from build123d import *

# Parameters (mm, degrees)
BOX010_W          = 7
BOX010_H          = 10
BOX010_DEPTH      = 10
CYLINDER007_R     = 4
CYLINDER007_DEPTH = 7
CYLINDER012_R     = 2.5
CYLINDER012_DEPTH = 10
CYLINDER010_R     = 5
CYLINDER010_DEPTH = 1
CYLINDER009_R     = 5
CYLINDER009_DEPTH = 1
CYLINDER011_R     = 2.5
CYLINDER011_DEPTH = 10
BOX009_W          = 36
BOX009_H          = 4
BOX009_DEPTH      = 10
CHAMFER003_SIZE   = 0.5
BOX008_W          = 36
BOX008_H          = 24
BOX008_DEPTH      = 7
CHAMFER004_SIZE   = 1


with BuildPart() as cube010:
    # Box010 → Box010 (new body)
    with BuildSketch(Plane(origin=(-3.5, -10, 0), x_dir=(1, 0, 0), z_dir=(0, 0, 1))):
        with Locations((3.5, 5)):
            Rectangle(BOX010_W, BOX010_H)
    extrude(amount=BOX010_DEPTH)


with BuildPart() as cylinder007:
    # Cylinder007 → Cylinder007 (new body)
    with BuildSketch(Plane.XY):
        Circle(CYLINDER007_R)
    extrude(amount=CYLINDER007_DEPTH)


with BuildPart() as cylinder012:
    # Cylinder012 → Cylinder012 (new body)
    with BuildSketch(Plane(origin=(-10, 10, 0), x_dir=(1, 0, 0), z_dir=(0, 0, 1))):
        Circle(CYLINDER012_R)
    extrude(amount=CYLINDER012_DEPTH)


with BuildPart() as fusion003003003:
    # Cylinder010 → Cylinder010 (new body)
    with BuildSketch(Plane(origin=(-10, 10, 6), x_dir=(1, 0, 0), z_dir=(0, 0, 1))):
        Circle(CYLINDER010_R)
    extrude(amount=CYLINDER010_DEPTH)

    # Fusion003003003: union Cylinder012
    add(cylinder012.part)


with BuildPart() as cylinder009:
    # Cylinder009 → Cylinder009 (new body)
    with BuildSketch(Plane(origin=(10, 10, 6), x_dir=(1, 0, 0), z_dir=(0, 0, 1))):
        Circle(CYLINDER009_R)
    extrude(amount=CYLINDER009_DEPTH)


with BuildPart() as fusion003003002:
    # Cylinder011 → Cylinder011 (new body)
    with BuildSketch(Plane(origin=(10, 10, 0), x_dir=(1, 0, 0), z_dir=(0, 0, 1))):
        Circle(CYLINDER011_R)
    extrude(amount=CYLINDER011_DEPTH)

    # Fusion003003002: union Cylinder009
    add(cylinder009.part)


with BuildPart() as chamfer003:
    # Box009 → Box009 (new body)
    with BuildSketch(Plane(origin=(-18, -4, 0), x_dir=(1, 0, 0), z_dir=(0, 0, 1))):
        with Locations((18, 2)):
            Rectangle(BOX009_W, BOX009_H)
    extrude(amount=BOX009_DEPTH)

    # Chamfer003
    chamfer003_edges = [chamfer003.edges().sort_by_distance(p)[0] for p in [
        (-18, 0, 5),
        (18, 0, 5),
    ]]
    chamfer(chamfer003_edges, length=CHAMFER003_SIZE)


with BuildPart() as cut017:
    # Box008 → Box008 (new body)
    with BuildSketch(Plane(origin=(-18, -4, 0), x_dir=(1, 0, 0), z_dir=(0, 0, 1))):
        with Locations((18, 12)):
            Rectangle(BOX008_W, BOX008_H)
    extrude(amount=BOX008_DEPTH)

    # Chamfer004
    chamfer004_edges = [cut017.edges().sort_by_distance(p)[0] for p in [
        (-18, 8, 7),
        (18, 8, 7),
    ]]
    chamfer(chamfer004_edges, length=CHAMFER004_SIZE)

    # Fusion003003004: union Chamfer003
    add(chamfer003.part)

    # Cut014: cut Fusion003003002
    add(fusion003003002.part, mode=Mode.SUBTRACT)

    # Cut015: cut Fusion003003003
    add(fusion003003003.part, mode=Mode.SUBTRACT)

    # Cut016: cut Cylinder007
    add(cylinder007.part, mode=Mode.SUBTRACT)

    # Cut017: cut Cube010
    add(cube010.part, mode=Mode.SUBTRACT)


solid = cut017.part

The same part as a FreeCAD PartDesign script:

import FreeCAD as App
import Part
import Sketcher

V = App.Vector


def edges_at(feature, points):
    """Names of the edges that pass closest to the given points."""
    edges = feature.Shape.Edges
    near = lambda p: min(range(len(edges)), key=lambda i: edges[i].distToShape(Part.Vertex(*p))[0])
    return sorted({f"Edge{near(p) + 1}" for p in points})


def add_polygon(sketch, points):
    """Adds a closed chain of lines whose ends are joined by coincident constraints."""
    first, n = sketch.GeometryCount, len(points)
    for a, b in zip(points, points[1:] + points[:1]):
        sketch.addGeometry(Part.LineSegment(App.Vector(*a, 0), App.Vector(*b, 0)), False)
    for i in range(n):
        sketch.addConstraint(Sketcher.Constraint("Coincident", first + i, 2, first + (i + 1) % n, 1))

doc = App.newDocument("Part")
body = doc.addObject("PartDesign::Body", "Body")

sketch1 = doc.addObject("Sketcher::SketchObject", "Sketch")
body.addObject(sketch1)
sketch1.AttachmentSupport = (doc.XY_Plane, [""])
sketch1.MapMode = "FlatFace"
add_polygon(sketch1, [(-4, 0), (-4, -10), (4, -10), (4, 0)])
sketch1.addConstraint(Sketcher.Constraint("Vertical", 0))
sketch1.addConstraint(Sketcher.Constraint("Horizontal", 1))
sketch1.addConstraint(Sketcher.Constraint("Vertical", 2))
sketch1.addConstraint(Sketcher.Constraint("Horizontal", 3))
sketch1.addConstraint(Sketcher.Constraint("Symmetric", 2, 2, 3, 2, -1, 1))
sketch1.addConstraint(Sketcher.Constraint("DistanceX", 1, 1, 1, 2, 7.0))
sketch1.addConstraint(Sketcher.Constraint("DistanceY", 0, 2, 0, 1, 10.0))
pad1 = doc.addObject("PartDesign::Pad", "Pad")
body.addObject(pad1)
pad1.Profile = sketch1
pad1.Length = 10
body2 = doc.addObject("PartDesign::Body", "Body001")

sketch2 = doc.addObject("Sketcher::SketchObject", "Sketch001")
body2.addObject(sketch2)
sketch2.AttachmentSupport = (doc.getObject("XY_Plane001"), [""])
sketch2.MapMode = "FlatFace"
sketch2.addGeometry(Part.Circle(V(0, 0, 0), V(0, 0, 1), 4), False)
sketch2.addConstraint(Sketcher.Constraint("Coincident", 0, 3, -1, 1))
sketch2.addConstraint(Sketcher.Constraint("Diameter", 0, 8.0))
pad2 = doc.addObject("PartDesign::Pad", "Pad001")
body2.addObject(pad2)
pad2.Profile = sketch2
pad2.Length = 7
body3 = doc.addObject("PartDesign::Body", "Body002")

sketch3 = doc.addObject("Sketcher::SketchObject", "Sketch002")
body3.addObject(sketch3)
sketch3.AttachmentSupport = (doc.getObject("XY_Plane002"), [""])
sketch3.MapMode = "FlatFace"
sketch3.addGeometry(Part.Circle(V(-10, 10, 0), V(0, 0, 1), 2.5), False)
sketch3.addConstraint(Sketcher.Constraint("Diameter", 0, 5.0))
sketch3.addConstraint(Sketcher.Constraint("DistanceX", 0, 3, -1, 1, 10.0))
sketch3.addConstraint(Sketcher.Constraint("DistanceY", -1, 1, 0, 3, 10.0))
pad3 = doc.addObject("PartDesign::Pad", "Pad002")
body3.addObject(pad3)
pad3.Profile = sketch3
pad3.Length = 10
body4 = doc.addObject("PartDesign::Body", "Body003")

sketch4 = doc.addObject("Sketcher::SketchObject", "Sketch003")
body4.addObject(sketch4)
sketch4.AttachmentSupport = (doc.getObject("XY_Plane003"), [""])
sketch4.MapMode = "FlatFace"
sketch4.AttachmentOffset = App.Placement(V(0, 0, 6), App.Rotation())
sketch4.addGeometry(Part.Circle(V(-10, 10, 0), V(0, 0, 1), 5), False)
sketch4.addConstraint(Sketcher.Constraint("Diameter", 0, 10.0))
sketch4.addConstraint(Sketcher.Constraint("DistanceX", 0, 3, -1, 1, 10.0))
sketch4.addConstraint(Sketcher.Constraint("DistanceY", -1, 1, 0, 3, 10.0))
pad4 = doc.addObject("PartDesign::Pad", "Pad003")
body4.addObject(pad4)
pad4.Profile = sketch4
pad4.Length = 1
doc.recompute()

boolean = doc.addObject("PartDesign::Boolean", "Boolean")
body4.addObject(boolean)
boolean.Type = "Fuse"
boolean.addObjects([body3])
body5 = doc.addObject("PartDesign::Body", "Body004")

sketch5 = doc.addObject("Sketcher::SketchObject", "Sketch004")
body5.addObject(sketch5)
sketch5.AttachmentSupport = (doc.getObject("XY_Plane004"), [""])
sketch5.MapMode = "FlatFace"
sketch5.AttachmentOffset = App.Placement(V(0, 0, 6), App.Rotation())
sketch5.addGeometry(Part.Circle(V(10, 10, 0), V(0, 0, 1), 5), False)
sketch5.addConstraint(Sketcher.Constraint("Diameter", 0, 10.0))
sketch5.addConstraint(Sketcher.Constraint("DistanceX", -1, 1, 0, 3, 10.0))
sketch5.addConstraint(Sketcher.Constraint("DistanceY", -1, 1, 0, 3, 10.0))
pad5 = doc.addObject("PartDesign::Pad", "Pad004")
body5.addObject(pad5)
pad5.Profile = sketch5
pad5.Length = 1
body6 = doc.addObject("PartDesign::Body", "Body005")

sketch6 = doc.addObject("Sketcher::SketchObject", "Sketch005")
body6.addObject(sketch6)
sketch6.AttachmentSupport = (doc.getObject("XY_Plane005"), [""])
sketch6.MapMode = "FlatFace"
sketch6.addGeometry(Part.Circle(V(10, 10, 0), V(0, 0, 1), 2.5), False)
sketch6.addConstraint(Sketcher.Constraint("Diameter", 0, 5.0))
sketch6.addConstraint(Sketcher.Constraint("DistanceX", -1, 1, 0, 3, 10.0))
sketch6.addConstraint(Sketcher.Constraint("DistanceY", -1, 1, 0, 3, 10.0))
pad6 = doc.addObject("PartDesign::Pad", "Pad005")
body6.addObject(pad6)
pad6.Profile = sketch6
pad6.Length = 10
doc.recompute()

boolean2 = doc.addObject("PartDesign::Boolean", "Boolean001")
body6.addObject(boolean2)
boolean2.Type = "Fuse"
boolean2.addObjects([body5])
body7 = doc.addObject("PartDesign::Body", "Body006")

sketch7 = doc.addObject("Sketcher::SketchObject", "Sketch006")
body7.addObject(sketch7)
sketch7.AttachmentSupport = (doc.getObject("XY_Plane006"), [""])
sketch7.MapMode = "FlatFace"
add_polygon(sketch7, [(-18, 0), (-18, -4), (18, -4), (18, 0)])
sketch7.addConstraint(Sketcher.Constraint("Vertical", 0))
sketch7.addConstraint(Sketcher.Constraint("Horizontal", 1))
sketch7.addConstraint(Sketcher.Constraint("Vertical", 2))
sketch7.addConstraint(Sketcher.Constraint("Horizontal", 3))
sketch7.addConstraint(Sketcher.Constraint("Symmetric", 2, 2, 3, 2, -1, 1))
sketch7.addConstraint(Sketcher.Constraint("DistanceX", 1, 1, 1, 2, 36.0))
sketch7.addConstraint(Sketcher.Constraint("DistanceY", 0, 2, 0, 1, 4.0))
pad7 = doc.addObject("PartDesign::Pad", "Pad006")
body7.addObject(pad7)
pad7.Profile = sketch7
pad7.Length = 10
doc.recompute()

chamfer = doc.addObject("PartDesign::Chamfer", "Chamfer")
body7.addObject(chamfer)
chamfer.Base = (pad7, edges_at(pad7, [(-18, 0, 5), (18, 0, 5)]))
chamfer.Size = 0.5
body8 = doc.addObject("PartDesign::Body", "Body007")

sketch8 = doc.addObject("Sketcher::SketchObject", "Sketch007")
body8.addObject(sketch8)
sketch8.AttachmentSupport = (doc.getObject("XY_Plane007"), [""])
sketch8.MapMode = "FlatFace"
add_polygon(sketch8, [(-18, 20), (-18, -4), (18, -4), (18, 20)])
sketch8.addConstraint(Sketcher.Constraint("Vertical", 0))
sketch8.addConstraint(Sketcher.Constraint("Horizontal", 1))
sketch8.addConstraint(Sketcher.Constraint("Vertical", 2))
sketch8.addConstraint(Sketcher.Constraint("Horizontal", 3))
sketch8.addConstraint(Sketcher.Constraint("DistanceX", 1, 1, 1, 2, 36.0))
sketch8.addConstraint(Sketcher.Constraint("DistanceY", 0, 2, 0, 1, 24.0))
sketch8.addConstraint(Sketcher.Constraint("DistanceX", 0, 2, -1, 1, 18.0))
sketch8.addConstraint(Sketcher.Constraint("DistanceY", 0, 2, -1, 1, 4.0))
pad8 = doc.addObject("PartDesign::Pad", "Pad007")
body8.addObject(pad8)
pad8.Profile = sketch8
pad8.Length = 7
doc.recompute()

chamfer2 = doc.addObject("PartDesign::Chamfer", "Chamfer001")
body8.addObject(chamfer2)
chamfer2.Base = (pad8, edges_at(pad8, [(-18, 8, 7), (18, 8, 7)]))
chamfer2.Size = 1
doc.recompute()

boolean3 = doc.addObject("PartDesign::Boolean", "Boolean002")
body8.addObject(boolean3)
boolean3.Type = "Fuse"
boolean3.addObjects([body7])
doc.recompute()

boolean4 = doc.addObject("PartDesign::Boolean", "Boolean003")
body8.addObject(boolean4)
boolean4.Type = "Cut"
boolean4.addObjects([body6])
doc.recompute()

boolean5 = doc.addObject("PartDesign::Boolean", "Boolean004")
body8.addObject(boolean5)
boolean5.Type = "Cut"
boolean5.addObjects([body4])
doc.recompute()

boolean6 = doc.addObject("PartDesign::Boolean", "Boolean005")
body8.addObject(boolean6)
boolean6.Type = "Cut"
boolean6.addObjects([body2])
doc.recompute()

boolean7 = doc.addObject("PartDesign::Boolean", "Boolean006")
body8.addObject(boolean7)
boolean7.Type = "Cut"
boolean7.addObjects([body])

doc.recompute()
